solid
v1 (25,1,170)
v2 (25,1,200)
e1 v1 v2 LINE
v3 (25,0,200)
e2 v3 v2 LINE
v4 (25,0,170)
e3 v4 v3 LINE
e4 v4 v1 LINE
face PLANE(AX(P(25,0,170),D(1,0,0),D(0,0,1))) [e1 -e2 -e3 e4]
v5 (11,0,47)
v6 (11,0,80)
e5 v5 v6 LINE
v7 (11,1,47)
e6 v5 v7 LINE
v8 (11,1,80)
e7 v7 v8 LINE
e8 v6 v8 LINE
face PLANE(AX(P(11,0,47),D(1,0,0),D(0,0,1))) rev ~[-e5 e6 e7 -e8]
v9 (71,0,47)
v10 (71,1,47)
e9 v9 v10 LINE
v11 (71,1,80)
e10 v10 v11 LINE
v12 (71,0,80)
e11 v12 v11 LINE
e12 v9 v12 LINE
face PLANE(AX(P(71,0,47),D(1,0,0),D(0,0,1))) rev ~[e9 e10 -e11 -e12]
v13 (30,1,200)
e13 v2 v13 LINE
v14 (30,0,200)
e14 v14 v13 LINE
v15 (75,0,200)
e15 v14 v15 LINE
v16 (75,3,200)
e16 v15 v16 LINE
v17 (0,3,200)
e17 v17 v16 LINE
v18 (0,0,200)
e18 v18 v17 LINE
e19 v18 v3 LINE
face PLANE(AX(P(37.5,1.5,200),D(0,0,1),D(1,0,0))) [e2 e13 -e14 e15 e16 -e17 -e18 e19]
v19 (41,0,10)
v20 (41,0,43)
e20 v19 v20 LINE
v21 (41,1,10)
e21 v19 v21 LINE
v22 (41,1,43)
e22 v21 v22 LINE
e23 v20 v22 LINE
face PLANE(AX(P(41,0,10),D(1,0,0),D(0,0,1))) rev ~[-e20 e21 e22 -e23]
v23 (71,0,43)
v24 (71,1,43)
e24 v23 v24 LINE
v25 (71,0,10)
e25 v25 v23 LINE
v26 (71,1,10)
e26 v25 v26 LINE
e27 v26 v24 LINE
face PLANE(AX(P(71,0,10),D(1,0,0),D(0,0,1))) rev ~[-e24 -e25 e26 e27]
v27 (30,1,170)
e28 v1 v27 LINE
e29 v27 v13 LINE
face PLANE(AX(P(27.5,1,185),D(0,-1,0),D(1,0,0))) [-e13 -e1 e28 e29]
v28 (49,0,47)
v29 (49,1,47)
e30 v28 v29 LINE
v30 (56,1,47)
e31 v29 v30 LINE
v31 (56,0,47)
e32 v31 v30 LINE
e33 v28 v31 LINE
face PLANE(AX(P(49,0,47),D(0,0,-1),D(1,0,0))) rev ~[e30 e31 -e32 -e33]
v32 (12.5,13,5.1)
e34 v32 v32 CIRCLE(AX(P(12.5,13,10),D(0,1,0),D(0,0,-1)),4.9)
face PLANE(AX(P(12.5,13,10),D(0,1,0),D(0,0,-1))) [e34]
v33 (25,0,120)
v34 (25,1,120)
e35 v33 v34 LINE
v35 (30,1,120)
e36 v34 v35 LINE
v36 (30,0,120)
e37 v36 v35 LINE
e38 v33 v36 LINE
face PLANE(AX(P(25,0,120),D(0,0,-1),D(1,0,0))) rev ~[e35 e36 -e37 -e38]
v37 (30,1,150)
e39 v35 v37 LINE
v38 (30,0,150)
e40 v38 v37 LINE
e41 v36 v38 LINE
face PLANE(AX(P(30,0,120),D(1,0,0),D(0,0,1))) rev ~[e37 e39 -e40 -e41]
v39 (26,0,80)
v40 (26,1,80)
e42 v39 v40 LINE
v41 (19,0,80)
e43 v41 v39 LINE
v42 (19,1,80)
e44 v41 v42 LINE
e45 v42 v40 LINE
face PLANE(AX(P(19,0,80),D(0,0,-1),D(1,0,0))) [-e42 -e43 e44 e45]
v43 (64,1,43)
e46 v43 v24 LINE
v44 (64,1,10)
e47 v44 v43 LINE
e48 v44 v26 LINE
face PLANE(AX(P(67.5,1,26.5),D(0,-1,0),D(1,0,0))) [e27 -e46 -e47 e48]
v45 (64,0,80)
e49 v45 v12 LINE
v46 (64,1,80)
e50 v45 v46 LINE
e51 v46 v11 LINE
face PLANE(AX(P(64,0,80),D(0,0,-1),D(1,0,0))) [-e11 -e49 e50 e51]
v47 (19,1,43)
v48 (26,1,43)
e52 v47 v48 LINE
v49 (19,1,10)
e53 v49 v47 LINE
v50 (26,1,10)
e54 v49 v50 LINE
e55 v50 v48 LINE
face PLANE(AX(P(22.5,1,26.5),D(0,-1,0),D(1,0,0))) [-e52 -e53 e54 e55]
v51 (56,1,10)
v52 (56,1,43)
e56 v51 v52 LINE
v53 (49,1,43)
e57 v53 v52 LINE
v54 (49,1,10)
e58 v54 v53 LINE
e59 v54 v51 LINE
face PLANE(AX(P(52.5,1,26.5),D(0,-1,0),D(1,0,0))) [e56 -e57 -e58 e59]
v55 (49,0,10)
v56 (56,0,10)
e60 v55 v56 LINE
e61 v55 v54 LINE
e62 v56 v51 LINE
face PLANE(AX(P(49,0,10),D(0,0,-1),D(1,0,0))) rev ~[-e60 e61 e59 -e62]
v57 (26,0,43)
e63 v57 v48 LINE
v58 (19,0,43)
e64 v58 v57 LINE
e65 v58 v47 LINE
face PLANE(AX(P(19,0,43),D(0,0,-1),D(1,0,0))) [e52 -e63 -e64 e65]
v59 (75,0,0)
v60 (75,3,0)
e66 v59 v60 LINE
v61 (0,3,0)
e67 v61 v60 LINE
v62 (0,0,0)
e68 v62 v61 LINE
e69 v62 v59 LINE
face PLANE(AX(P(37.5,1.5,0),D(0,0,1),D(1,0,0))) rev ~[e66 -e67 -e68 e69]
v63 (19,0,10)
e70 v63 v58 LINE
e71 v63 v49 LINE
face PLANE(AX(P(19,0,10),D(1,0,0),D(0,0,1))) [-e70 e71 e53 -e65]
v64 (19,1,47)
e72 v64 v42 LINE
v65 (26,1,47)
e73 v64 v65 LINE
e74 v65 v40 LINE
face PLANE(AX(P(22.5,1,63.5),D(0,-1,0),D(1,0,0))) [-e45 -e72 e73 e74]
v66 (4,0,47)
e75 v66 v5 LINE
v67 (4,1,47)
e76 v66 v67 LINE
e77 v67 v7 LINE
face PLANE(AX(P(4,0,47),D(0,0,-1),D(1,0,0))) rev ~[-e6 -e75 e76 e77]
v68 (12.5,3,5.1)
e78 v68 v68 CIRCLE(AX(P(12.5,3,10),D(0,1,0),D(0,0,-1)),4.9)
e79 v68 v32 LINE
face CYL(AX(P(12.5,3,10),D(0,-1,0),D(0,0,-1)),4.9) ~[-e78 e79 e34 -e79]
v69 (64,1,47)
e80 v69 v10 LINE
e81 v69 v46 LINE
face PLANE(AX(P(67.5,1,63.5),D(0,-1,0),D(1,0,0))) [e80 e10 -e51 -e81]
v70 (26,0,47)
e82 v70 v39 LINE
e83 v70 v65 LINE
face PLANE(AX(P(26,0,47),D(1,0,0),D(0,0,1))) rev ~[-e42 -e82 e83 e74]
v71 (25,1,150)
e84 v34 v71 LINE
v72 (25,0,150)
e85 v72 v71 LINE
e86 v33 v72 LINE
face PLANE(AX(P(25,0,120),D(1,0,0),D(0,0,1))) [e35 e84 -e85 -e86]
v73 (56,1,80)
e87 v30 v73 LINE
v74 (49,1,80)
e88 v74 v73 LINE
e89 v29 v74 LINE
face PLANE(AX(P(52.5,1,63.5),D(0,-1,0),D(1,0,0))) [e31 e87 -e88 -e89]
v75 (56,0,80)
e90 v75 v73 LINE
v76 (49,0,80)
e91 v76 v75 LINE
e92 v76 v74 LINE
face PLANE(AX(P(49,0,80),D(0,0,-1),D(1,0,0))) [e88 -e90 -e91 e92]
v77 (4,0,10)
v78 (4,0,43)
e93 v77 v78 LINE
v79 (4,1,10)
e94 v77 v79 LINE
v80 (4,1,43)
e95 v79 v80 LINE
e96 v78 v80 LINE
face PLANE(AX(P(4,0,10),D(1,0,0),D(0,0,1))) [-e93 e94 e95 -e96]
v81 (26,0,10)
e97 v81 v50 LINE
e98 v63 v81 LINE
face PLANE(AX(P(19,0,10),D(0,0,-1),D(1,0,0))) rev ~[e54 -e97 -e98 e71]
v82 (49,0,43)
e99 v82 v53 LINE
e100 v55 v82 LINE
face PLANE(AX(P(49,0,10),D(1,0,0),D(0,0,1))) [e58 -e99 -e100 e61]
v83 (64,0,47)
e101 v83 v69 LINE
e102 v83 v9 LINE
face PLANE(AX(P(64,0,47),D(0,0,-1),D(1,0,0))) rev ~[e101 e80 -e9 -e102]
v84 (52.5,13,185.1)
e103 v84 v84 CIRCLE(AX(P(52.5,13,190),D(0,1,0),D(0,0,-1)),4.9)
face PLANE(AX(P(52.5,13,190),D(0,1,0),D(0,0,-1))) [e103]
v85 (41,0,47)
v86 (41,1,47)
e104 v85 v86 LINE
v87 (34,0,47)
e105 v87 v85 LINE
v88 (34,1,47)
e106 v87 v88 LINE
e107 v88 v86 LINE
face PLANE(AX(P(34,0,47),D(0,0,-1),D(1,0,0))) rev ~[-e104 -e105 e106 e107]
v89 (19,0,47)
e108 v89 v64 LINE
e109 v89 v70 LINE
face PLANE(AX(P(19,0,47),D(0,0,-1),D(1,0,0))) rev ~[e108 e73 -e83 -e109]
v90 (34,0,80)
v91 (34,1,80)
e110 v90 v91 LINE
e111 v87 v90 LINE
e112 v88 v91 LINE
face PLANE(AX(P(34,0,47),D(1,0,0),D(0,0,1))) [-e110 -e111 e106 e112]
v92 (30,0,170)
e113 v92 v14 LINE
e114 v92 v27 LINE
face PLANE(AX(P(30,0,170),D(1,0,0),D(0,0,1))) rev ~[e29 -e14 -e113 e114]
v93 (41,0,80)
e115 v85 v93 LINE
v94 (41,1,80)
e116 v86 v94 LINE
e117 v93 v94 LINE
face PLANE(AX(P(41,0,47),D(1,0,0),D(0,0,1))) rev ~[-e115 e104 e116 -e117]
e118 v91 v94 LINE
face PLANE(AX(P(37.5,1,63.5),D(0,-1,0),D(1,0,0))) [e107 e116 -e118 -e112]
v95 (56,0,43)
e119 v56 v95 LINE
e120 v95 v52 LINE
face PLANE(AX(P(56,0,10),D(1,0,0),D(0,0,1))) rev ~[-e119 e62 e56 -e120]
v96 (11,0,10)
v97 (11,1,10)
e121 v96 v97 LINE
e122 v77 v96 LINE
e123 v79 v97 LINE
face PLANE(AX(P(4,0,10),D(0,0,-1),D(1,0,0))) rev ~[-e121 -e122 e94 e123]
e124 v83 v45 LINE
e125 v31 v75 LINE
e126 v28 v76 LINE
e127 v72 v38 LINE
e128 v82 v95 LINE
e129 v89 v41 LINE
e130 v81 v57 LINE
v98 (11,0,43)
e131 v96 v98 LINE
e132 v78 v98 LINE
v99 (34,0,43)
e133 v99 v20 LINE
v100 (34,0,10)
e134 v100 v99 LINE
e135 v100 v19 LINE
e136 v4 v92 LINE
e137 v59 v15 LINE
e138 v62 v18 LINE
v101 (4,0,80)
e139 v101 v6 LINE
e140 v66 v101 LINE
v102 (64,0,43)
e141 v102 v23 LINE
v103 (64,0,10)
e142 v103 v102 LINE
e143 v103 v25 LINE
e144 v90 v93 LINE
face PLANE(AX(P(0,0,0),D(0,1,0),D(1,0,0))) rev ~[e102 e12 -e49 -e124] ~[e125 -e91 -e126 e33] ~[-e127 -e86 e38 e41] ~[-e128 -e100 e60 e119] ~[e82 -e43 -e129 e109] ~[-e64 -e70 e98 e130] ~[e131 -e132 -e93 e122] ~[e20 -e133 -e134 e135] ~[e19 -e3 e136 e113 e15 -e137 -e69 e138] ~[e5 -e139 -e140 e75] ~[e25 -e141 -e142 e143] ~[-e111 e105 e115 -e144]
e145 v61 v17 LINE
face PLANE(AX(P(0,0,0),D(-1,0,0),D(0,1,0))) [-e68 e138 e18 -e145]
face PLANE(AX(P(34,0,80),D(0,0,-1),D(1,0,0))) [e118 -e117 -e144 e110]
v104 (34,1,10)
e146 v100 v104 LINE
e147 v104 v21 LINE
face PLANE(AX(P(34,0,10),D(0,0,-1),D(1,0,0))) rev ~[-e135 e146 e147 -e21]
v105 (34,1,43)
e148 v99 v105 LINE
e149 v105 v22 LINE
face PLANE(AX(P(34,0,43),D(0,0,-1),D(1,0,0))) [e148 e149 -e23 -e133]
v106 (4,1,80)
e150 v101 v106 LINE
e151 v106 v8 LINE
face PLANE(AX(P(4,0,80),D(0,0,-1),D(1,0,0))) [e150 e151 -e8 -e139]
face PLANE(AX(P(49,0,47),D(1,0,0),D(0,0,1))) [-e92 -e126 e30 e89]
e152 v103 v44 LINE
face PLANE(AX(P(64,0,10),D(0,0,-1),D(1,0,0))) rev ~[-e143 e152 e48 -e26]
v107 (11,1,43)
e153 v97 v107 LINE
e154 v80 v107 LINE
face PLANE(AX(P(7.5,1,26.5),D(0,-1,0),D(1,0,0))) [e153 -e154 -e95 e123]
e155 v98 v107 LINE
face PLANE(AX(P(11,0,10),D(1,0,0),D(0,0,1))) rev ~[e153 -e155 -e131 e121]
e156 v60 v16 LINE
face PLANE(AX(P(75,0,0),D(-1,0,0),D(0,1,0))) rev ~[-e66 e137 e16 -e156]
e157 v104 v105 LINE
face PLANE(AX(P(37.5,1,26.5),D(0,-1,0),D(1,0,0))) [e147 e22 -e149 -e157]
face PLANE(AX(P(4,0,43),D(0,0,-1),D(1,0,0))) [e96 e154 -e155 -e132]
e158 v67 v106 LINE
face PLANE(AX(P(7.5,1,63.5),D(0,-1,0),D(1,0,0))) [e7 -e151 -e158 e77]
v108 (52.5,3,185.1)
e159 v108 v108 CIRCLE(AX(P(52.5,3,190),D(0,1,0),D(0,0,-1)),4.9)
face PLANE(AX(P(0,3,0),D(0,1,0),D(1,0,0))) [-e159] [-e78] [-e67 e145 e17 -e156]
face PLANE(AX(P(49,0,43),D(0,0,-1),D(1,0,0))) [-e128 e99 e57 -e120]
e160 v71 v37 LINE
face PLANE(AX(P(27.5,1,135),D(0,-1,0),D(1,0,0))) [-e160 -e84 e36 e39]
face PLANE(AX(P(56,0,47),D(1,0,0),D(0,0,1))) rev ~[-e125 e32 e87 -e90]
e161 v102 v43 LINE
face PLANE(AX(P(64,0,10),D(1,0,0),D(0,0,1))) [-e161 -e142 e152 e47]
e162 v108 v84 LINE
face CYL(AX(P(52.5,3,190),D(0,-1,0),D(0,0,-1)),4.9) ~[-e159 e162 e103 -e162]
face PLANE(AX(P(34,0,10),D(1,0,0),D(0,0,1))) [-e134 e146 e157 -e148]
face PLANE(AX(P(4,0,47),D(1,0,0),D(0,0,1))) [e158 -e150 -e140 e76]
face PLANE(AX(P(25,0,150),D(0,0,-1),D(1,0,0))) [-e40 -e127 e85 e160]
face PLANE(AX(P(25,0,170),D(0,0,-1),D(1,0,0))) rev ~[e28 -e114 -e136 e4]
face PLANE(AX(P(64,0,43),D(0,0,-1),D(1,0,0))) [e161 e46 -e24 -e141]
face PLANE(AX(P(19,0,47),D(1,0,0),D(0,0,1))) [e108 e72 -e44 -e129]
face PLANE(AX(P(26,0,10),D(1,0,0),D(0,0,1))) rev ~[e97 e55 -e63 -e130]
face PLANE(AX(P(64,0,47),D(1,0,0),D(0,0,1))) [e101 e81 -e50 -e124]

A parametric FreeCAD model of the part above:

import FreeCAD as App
import Part
import Sketcher

V = App.Vector

doc = App.newDocument("Part")
params = doc.addObject("Spreadsheet::Sheet", "Params")
for row, (alias, value) in enumerate([
    ("sketch1_width", "75 mm"),
    ("sketch1_height", "3 mm"),
    ("pad1_length", "200 mm"),
    ("sketch2_diameter", "9.8 mm"),
    ("pad2_length", "10 mm"),
    ("sketch3_width", "7 mm"),
    ("sketch3_width2", "5 mm"),
    ("sketch3_height", "33 mm"),
    ("sketch3_height2", "30 mm"),
    ("pocket1_length", "1 mm"),
], start=1):
    params.set(f"A{row}", alias)
    params.set(f"B{row}", "=" + value)
    params.setAlias(f"B{row}", alias)

body = doc.addObject("PartDesign::Body", "Body")

# Sketch on XY plane
sketch1 = body.newObject("Sketcher::SketchObject", "Sketch")
sketch1.AttachmentSupport = (doc.getObject("XY_Plane"), [""])
sketch1.MapMode = "FlatFace"
sketch1.addGeometry([
    Part.LineSegment(V(0, 3, 0), V(0, 0, 0)),
    Part.LineSegment(V(0, 0, 0), V(75, 0, 0)),
    Part.LineSegment(V(75, 0, 0), V(75, 3, 0)),
    Part.LineSegment(V(75, 3, 0), V(0, 3, 0)),
], False)
sketch1.addConstraint([
    Sketcher.Constraint("Coincident", 0, 2, 1, 1),
    Sketcher.Constraint("Coincident", 1, 2, 2, 1),
    Sketcher.Constraint("Coincident", 2, 2, 3, 1),
    Sketcher.Constraint("Coincident", 3, 2, 0, 1),
    Sketcher.Constraint("Vertical", 0),
    Sketcher.Constraint("Horizontal", 1),
    Sketcher.Constraint("Vertical", 2),
    Sketcher.Constraint("Horizontal", 3),
    Sketcher.Constraint("Coincident", 0, 2, -1, 1),
    Sketcher.Constraint("DistanceX", 1, 1, 1, 2, 75.0),
    Sketcher.Constraint("DistanceY", 0, 2, 0, 1, 3.0),
])
sketch1.setExpression("Constraints[9]", "Params.sketch1_width")
sketch1.setExpression("Constraints[10]", "Params.sketch1_height")
pad1 = body.newObject("PartDesign::Pad", "Pad")
pad1.Profile = sketch1
pad1.setExpression("Length", "Params.pad1_length")

# Sketch on XZ plane
sketch2 = body.newObject("Sketcher::SketchObject", "Sketch001")
sketch2.AttachmentSupport = (doc.getObject("XZ_Plane"), [""])
sketch2.MapMode = "FlatFace"
sketch2.AttachmentOffset = App.Placement(V(0, 0, -3), App.Rotation())
sketch2.addGeometry([
    Part.Circle(V(12.5, 10, 0), V(0, 0, 1), 4.9),
    Part.Circle(V(52.5, 190, 0), V(0, 0, 1), 4.9),
], False)
sketch2.addConstraint([
    Sketcher.Constraint("Equal", 0, 1),
    Sketcher.Constraint("Diameter", 0, 9.8),
    Sketcher.Constraint("DistanceY", -1, 1, 0, 3, 10.0),
    Sketcher.Constraint("DistanceY", -1, 1, 1, 3, 190.0),
    Sketcher.Constraint("DistanceX", 0, 3, 1, 3, 40.0),
    Sketcher.Constraint("DistanceX", -1, 1, 0, 3, 12.5),
])
sketch2.setExpression("Constraints[1]", "Params.sketch2_diameter")
pad2 = body.newObject("PartDesign::Pad", "Pad001")
pad2.Profile = sketch2
pad2.setExpression("Length", "Params.pad2_length")
pad2.Reversed = True

# Sketch on XZ plane
sketch3 = body.newObject("Sketcher::SketchObject", "Sketch002")
sketch3.AttachmentSupport = (doc.getObject("XZ_Plane"), [""])
sketch3.MapMode = "FlatFace"
sketch3.addGeometry([
    Part.LineSegment(V(4, 43, 0), V(4, 10, 0)),  # 0
    Part.LineSegment(V(4, 10, 0), V(11, 10, 0)),  # 1
    Part.LineSegment(V(11, 10, 0), V(11, 43, 0)),  # 2
    Part.LineSegment(V(11, 43, 0), V(4, 43, 0)),  # 3
    Part.LineSegment(V(4, 80, 0), V(4, 47, 0)),  # 4
    Part.LineSegment(V(4, 47, 0), V(11, 47, 0)),  # 5
    Part.LineSegment(V(11, 47, 0), V(11, 80, 0)),  # 6
    Part.LineSegment(V(11, 80, 0), V(4, 80, 0)),  # 7
    Part.LineSegment(V(25, 150, 0), V(25, 120, 0)),  # 8
    Part.LineSegment(V(25, 120, 0), V(30, 120, 0)),  # 9
    Part.LineSegment(V(30, 120, 0), V(30, 150, 0)),  # 10
    Part.LineSegment(V(30, 150, 0), V(25, 150, 0)),  # 11
    Part.LineSegment(V(19, 43, 0), V(19, 10, 0)),  # 12
    Part.LineSegment(V(19, 10, 0), V(26, 10, 0)),  # 13
    Part.LineSegment(V(26, 10, 0), V(26, 43, 0)),  # 14
    Part.LineSegment(V(26, 43, 0), V(19, 43, 0)),  # 15
    Part.LineSegment(V(19, 80, 0), V(19, 47, 0)),  # 16
    Part.LineSegment(V(19, 47, 0), V(26, 47, 0)),  # 17
    Part.LineSegment(V(26, 47, 0), V(26, 80, 0)),  # 18
    Part.LineSegment(V(26, 80, 0), V(19, 80, 0)),  # 19
    Part.LineSegment(V(34, 43, 0), V(34, 10, 0)),  # 20
    Part.LineSegment(V(34, 10, 0), V(41, 10, 0)),  # 21
    Part.LineSegment(V(41, 10, 0), V(41, 43, 0)),  # 22
    Part.LineSegment(V(41, 43, 0), V(34, 43, 0)),  # 23
    Part.LineSegment(V(34, 80, 0), V(34, 47, 0)),  # 24
    Part.LineSegment(V(34, 47, 0), V(41, 47, 0)),  # 25
    Part.LineSegment(V(41, 47, 0), V(41, 80, 0)),  # 26
    Part.LineSegment(V(41, 80, 0), V(34, 80, 0)),  # 27
    Part.LineSegment(V(49, 43, 0), V(49, 10, 0)),  # 28
    Part.LineSegment(V(49, 10, 0), V(56, 10, 0)),  # 29
    Part.LineSegment(V(56, 10, 0), V(56, 43, 0)),  # 30
    Part.LineSegment(V(56, 43, 0), V(49, 43, 0)),  # 31
    Part.LineSegment(V(49, 80, 0), V(49, 47, 0)),  # 32
    Part.LineSegment(V(49, 47, 0), V(56, 47, 0)),  # 33
    Part.LineSegment(V(56, 47, 0), V(56, 80, 0)),  # 34
    Part.LineSegment(V(56, 80, 0), V(49, 80, 0)),  # 35
    Part.LineSegment(V(64, 43, 0), V(64, 10, 0)),  # 36
    Part.LineSegment(V(64, 10, 0), V(71, 10, 0)),  # 37
    Part.LineSegment(V(71, 10, 0), V(71, 43, 0)),  # 38
    Part.LineSegment(V(71, 43, 0), V(64, 43, 0)),  # 39
    Part.LineSegment(V(64, 80, 0), V(64, 47, 0)),  # 40
    Part.LineSegment(V(64, 47, 0), V(71, 47, 0)),  # 41
    Part.LineSegment(V(71, 47, 0), V(71, 80, 0)),  # 42
    Part.LineSegment(V(71, 80, 0), V(64, 80, 0)),  # 43
    Part.LineSegment(V(25, 200, 0), V(25, 170, 0)),  # 44
    Part.LineSegment(V(25, 170, 0), V(30, 170, 0)),  # 45
    Part.LineSegment(V(30, 170, 0), V(30, 200, 0)),  # 46
    Part.LineSegment(V(30, 200, 0), V(25, 200, 0)),  # 47
], False)
sketch3.addConstraint([
    Sketcher.Constraint("Coincident", 0, 2, 1, 1),
    Sketcher.Constraint("Coincident", 1, 2, 2, 1),
    Sketcher.Constraint("Coincident", 2, 2, 3, 1),
    Sketcher.Constraint("Coincident", 3, 2, 0, 1),
    Sketcher.Constraint("Coincident", 4, 2, 5, 1),
    Sketcher.Constraint("Coincident", 5, 2, 6, 1),
    Sketcher.Constraint("Coincident", 6, 2, 7, 1),
    Sketcher.Constraint("Coincident", 7, 2, 4, 1),
    Sketcher.Constraint("Coincident", 8, 2, 9, 1),
    Sketcher.Constraint("Coincident", 9, 2, 10, 1),
    Sketcher.Constraint("Coincident", 10, 2, 11, 1),
    Sketcher.Constraint("Coincident", 11, 2, 8, 1),
    Sketcher.Constraint("Coincident", 12, 2, 13, 1),
    Sketcher.Constraint("Coincident", 13, 2, 14, 1),
    Sketcher.Constraint("Coincident", 14, 2, 15, 1),
    Sketcher.Constraint("Coincident", 15, 2, 12, 1),
    Sketcher.Constraint("Coincident", 16, 2, 17, 1),
    Sketcher.Constraint("Coincident", 17, 2, 18, 1),
    Sketcher.Constraint("Coincident", 18, 2, 19, 1),
    Sketcher.Constraint("Coincident", 19, 2, 16, 1),
    Sketcher.Constraint("Coincident", 20, 2, 21, 1),
    Sketcher.Constraint("Coincident", 21, 2, 22, 1),
    Sketcher.Constraint("Coincident", 22, 2, 23, 1),
    Sketcher.Constraint("Coincident", 23, 2, 20, 1),
    Sketcher.Constraint("Coincident", 24, 2, 25, 1),
    Sketcher.Constraint("Coincident", 25, 2, 26, 1),
    Sketcher.Constraint("Coincident", 26, 2, 27, 1),
    Sketcher.Constraint("Coincident", 27, 2, 24, 1),
    Sketcher.Constraint("Coincident", 28, 2, 29, 1),
    Sketcher.Constraint("Coincident", 29, 2, 30, 1),
    Sketcher.Constraint("Coincident", 30, 2, 31, 1),
    Sketcher.Constraint("Coincident", 31, 2, 28, 1),
    Sketcher.Constraint("Coincident", 32, 2, 33, 1),
    Sketcher.Constraint("Coincident", 33, 2, 34, 1),
    Sketcher.Constraint("Coincident", 34, 2, 35, 1),
    Sketcher.Constraint("Coincident", 35, 2, 32, 1),
    Sketcher.Constraint("Coincident", 36, 2, 37, 1),
    Sketcher.Constraint("Coincident", 37, 2, 38, 1),
    Sketcher.Constraint("Coincident", 38, 2, 39, 1),
    Sketcher.Constraint("Coincident", 39, 2, 36, 1),
    Sketcher.Constraint("Coincident", 40, 2, 41, 1),
    Sketcher.Constraint("Coincident", 41, 2, 42, 1),
    Sketcher.Constraint("Coincident", 42, 2, 43, 1),
    Sketcher.Constraint("Coincident", 43, 2, 40, 1),
    Sketcher.Constraint("Coincident", 44, 2, 45, 1),
    Sketcher.Constraint("Coincident", 45, 2, 46, 1),
    Sketcher.Constraint("Coincident", 46, 2, 47, 1),
    Sketcher.Constraint("Coincident", 47, 2, 44, 1),
    Sketcher.Constraint("Vertical", 0),
    Sketcher.Constraint("Horizontal", 1),
    Sketcher.Constraint("Vertical", 2),
    Sketcher.Constraint("Horizontal", 3),
    Sketcher.Constraint("Vertical", 4),
    Sketcher.Constraint("Horizontal", 5),
    Sketcher.Constraint("Vertical", 6),
    Sketcher.Constraint("Horizontal", 7),
    Sketcher.Constraint("Vertical", 8),
    Sketcher.Constraint("Horizontal", 9),
    Sketcher.Constraint("Vertical", 10),
    Sketcher.Constraint("Horizontal", 11),
    Sketcher.Constraint("Vertical", 12),
    Sketcher.Constraint("Horizontal", 13),
    Sketcher.Constraint("Vertical", 14),
    Sketcher.Constraint("Horizontal", 15),
    Sketcher.Constraint("Vertical", 16),
    Sketcher.Constraint("Horizontal", 17),
    Sketcher.Constraint("Vertical", 18),
    Sketcher.Constraint("Horizontal", 19),
    Sketcher.Constraint("Vertical", 20),
    Sketcher.Constraint("Horizontal", 21),
    Sketcher.Constraint("Vertical", 22),
    Sketcher.Constraint("Horizontal", 23),
    Sketcher.Constraint("Vertical", 24),
    Sketcher.Constraint("Horizontal", 25),
    Sketcher.Constraint("Vertical", 26),
    Sketcher.Constraint("Horizontal", 27),
    Sketcher.Constraint("Vertical", 28),
    Sketcher.Constraint("Horizontal", 29),
    Sketcher.Constraint("Vertical", 30),
    Sketcher.Constraint("Horizontal", 31),
    Sketcher.Constraint("Vertical", 32),
    Sketcher.Constraint("Horizontal", 33),
    Sketcher.Constraint("Vertical", 34),
    Sketcher.Constraint("Horizontal", 35),
    Sketcher.Constraint("Vertical", 36),
    Sketcher.Constraint("Horizontal", 37),
    Sketcher.Constraint("Vertical", 38),
    Sketcher.Constraint("Horizontal", 39),
    Sketcher.Constraint("Vertical", 40),
    Sketcher.Constraint("Horizontal", 41),
    Sketcher.Constraint("Vertical", 42),
    Sketcher.Constraint("Horizontal", 43),
    Sketcher.Constraint("Vertical", 44),
    Sketcher.Constraint("Horizontal", 45),
    Sketcher.Constraint("Vertical", 46),
    Sketcher.Constraint("Horizontal", 47),
    Sketcher.Constraint("Horizontal", 1, 2, 12, 2),
    Sketcher.Constraint("Horizontal", 3, 2, 14, 2),
    Sketcher.Constraint("Horizontal", 5, 2, 16, 2),
    Sketcher.Constraint("Horizontal", 7, 2, 18, 2),
    Sketcher.Constraint("Horizontal", 13, 2, 20, 2),
    Sketcher.Constraint("Horizontal", 15, 2, 22, 2),
    Sketcher.Constraint("Horizontal", 17, 2, 24, 2),
    Sketcher.Constraint("Horizontal", 19, 2, 26, 2),
    Sketcher.Constraint("Horizontal", 21, 2, 28, 2),
    Sketcher.Constraint("Horizontal", 23, 2, 30, 2),
    Sketcher.Constraint("Horizontal", 25, 2, 32, 2),
    Sketcher.Constraint("Horizontal", 27, 2, 34, 2),
    Sketcher.Constraint("Horizontal", 29, 2, 36, 2),
    Sketcher.Constraint("Horizontal", 31, 2, 38, 2),
    Sketcher.Constraint("Horizontal", 33, 2, 40, 2),
    Sketcher.Constraint("Horizontal", 35, 2, 42, 2),
    Sketcher.Constraint("Vertical", 3, 2, 4, 2),
    Sketcher.Constraint("Vertical", 2, 2, 5, 2),
    Sketcher.Constraint("Vertical", 15, 2, 16, 2),
    Sketcher.Constraint("Vertical", 14, 2, 17, 2),
    Sketcher.Constraint("Vertical", 23, 2, 24, 2),
    Sketcher.Constraint("Vertical", 22, 2, 25, 2),
    Sketcher.Constraint("Vertical", 31, 2, 32, 2),
    Sketcher.Constraint("Vertical", 30, 2, 33, 2),
    Sketcher.Constraint("Vertical", 39, 2, 40, 2),
    Sketcher.Constraint("Vertical", 38, 2, 41, 2),
    Sketcher.Constraint("Vertical", 11, 2, 44, 2),
    Sketcher.Constraint("Vertical", 10, 2, 45, 2),
    Sketcher.Constraint("Equal", 7, 13),
    Sketcher.Constraint("Equal", 19, 21),
    Sketcher.Constraint("Equal", 27, 29),
    Sketcher.Constraint("Equal", 35, 37),
    Sketcher.Constraint("Equal", 2, 4),
    Sketcher.Constraint("Equal", 10, 44),
    Sketcher.Constraint("DistanceX", 1, 1, 1, 2, 7.0),
    Sketcher.Constraint("DistanceX", 9, 1, 9, 2, 5.0),
    Sketcher.Constraint("DistanceY", 0, 2, 0, 1, 33.0),
    Sketcher.Constraint("DistanceY", 8, 2, 8, 1, 30.0),
    Sketcher.Constraint("DistanceX", -1, 1, 0, 2, 4.0),
    Sketcher.Constraint("DistanceY", -1, 1, 0, 2, 10.0),
    Sketcher.Constraint("DistanceY", -1, 1, 4, 2, 47.0),
    Sketcher.Constraint("DistanceX", -1, 1, 8, 2, 25.0),
    Sketcher.Constraint("DistanceY", -1, 1, 8, 2, 120.0),
    Sketcher.Constraint("DistanceX", -1, 1, 12, 2, 19.0),
    Sketcher.Constraint("DistanceX", -1, 1, 20, 2, 34.0),
    Sketcher.Constraint("DistanceX", -1, 1, 28, 2, 49.0),
    Sketcher.Constraint("DistanceX", -1, 1, 36, 2, 64.0),
    Sketcher.Constraint("DistanceY", -1, 1, 44, 2, 170.0),
])
sketch3.setExpression("Constraints[130]", "Params.sketch3_width")
sketch3.setExpression("Constraints[131]", "Params.sketch3_width2")
sketch3.setExpression("Constraints[132]", "Params.sketch3_height")
sketch3.setExpression("Constraints[133]", "Params.sketch3_height2")
pocket1 = body.newObject("PartDesign::Pocket", "Pocket")
pocket1.Profile = sketch3
pocket1.setExpression("Length", "Params.pocket1_length")

doc.recompute()
